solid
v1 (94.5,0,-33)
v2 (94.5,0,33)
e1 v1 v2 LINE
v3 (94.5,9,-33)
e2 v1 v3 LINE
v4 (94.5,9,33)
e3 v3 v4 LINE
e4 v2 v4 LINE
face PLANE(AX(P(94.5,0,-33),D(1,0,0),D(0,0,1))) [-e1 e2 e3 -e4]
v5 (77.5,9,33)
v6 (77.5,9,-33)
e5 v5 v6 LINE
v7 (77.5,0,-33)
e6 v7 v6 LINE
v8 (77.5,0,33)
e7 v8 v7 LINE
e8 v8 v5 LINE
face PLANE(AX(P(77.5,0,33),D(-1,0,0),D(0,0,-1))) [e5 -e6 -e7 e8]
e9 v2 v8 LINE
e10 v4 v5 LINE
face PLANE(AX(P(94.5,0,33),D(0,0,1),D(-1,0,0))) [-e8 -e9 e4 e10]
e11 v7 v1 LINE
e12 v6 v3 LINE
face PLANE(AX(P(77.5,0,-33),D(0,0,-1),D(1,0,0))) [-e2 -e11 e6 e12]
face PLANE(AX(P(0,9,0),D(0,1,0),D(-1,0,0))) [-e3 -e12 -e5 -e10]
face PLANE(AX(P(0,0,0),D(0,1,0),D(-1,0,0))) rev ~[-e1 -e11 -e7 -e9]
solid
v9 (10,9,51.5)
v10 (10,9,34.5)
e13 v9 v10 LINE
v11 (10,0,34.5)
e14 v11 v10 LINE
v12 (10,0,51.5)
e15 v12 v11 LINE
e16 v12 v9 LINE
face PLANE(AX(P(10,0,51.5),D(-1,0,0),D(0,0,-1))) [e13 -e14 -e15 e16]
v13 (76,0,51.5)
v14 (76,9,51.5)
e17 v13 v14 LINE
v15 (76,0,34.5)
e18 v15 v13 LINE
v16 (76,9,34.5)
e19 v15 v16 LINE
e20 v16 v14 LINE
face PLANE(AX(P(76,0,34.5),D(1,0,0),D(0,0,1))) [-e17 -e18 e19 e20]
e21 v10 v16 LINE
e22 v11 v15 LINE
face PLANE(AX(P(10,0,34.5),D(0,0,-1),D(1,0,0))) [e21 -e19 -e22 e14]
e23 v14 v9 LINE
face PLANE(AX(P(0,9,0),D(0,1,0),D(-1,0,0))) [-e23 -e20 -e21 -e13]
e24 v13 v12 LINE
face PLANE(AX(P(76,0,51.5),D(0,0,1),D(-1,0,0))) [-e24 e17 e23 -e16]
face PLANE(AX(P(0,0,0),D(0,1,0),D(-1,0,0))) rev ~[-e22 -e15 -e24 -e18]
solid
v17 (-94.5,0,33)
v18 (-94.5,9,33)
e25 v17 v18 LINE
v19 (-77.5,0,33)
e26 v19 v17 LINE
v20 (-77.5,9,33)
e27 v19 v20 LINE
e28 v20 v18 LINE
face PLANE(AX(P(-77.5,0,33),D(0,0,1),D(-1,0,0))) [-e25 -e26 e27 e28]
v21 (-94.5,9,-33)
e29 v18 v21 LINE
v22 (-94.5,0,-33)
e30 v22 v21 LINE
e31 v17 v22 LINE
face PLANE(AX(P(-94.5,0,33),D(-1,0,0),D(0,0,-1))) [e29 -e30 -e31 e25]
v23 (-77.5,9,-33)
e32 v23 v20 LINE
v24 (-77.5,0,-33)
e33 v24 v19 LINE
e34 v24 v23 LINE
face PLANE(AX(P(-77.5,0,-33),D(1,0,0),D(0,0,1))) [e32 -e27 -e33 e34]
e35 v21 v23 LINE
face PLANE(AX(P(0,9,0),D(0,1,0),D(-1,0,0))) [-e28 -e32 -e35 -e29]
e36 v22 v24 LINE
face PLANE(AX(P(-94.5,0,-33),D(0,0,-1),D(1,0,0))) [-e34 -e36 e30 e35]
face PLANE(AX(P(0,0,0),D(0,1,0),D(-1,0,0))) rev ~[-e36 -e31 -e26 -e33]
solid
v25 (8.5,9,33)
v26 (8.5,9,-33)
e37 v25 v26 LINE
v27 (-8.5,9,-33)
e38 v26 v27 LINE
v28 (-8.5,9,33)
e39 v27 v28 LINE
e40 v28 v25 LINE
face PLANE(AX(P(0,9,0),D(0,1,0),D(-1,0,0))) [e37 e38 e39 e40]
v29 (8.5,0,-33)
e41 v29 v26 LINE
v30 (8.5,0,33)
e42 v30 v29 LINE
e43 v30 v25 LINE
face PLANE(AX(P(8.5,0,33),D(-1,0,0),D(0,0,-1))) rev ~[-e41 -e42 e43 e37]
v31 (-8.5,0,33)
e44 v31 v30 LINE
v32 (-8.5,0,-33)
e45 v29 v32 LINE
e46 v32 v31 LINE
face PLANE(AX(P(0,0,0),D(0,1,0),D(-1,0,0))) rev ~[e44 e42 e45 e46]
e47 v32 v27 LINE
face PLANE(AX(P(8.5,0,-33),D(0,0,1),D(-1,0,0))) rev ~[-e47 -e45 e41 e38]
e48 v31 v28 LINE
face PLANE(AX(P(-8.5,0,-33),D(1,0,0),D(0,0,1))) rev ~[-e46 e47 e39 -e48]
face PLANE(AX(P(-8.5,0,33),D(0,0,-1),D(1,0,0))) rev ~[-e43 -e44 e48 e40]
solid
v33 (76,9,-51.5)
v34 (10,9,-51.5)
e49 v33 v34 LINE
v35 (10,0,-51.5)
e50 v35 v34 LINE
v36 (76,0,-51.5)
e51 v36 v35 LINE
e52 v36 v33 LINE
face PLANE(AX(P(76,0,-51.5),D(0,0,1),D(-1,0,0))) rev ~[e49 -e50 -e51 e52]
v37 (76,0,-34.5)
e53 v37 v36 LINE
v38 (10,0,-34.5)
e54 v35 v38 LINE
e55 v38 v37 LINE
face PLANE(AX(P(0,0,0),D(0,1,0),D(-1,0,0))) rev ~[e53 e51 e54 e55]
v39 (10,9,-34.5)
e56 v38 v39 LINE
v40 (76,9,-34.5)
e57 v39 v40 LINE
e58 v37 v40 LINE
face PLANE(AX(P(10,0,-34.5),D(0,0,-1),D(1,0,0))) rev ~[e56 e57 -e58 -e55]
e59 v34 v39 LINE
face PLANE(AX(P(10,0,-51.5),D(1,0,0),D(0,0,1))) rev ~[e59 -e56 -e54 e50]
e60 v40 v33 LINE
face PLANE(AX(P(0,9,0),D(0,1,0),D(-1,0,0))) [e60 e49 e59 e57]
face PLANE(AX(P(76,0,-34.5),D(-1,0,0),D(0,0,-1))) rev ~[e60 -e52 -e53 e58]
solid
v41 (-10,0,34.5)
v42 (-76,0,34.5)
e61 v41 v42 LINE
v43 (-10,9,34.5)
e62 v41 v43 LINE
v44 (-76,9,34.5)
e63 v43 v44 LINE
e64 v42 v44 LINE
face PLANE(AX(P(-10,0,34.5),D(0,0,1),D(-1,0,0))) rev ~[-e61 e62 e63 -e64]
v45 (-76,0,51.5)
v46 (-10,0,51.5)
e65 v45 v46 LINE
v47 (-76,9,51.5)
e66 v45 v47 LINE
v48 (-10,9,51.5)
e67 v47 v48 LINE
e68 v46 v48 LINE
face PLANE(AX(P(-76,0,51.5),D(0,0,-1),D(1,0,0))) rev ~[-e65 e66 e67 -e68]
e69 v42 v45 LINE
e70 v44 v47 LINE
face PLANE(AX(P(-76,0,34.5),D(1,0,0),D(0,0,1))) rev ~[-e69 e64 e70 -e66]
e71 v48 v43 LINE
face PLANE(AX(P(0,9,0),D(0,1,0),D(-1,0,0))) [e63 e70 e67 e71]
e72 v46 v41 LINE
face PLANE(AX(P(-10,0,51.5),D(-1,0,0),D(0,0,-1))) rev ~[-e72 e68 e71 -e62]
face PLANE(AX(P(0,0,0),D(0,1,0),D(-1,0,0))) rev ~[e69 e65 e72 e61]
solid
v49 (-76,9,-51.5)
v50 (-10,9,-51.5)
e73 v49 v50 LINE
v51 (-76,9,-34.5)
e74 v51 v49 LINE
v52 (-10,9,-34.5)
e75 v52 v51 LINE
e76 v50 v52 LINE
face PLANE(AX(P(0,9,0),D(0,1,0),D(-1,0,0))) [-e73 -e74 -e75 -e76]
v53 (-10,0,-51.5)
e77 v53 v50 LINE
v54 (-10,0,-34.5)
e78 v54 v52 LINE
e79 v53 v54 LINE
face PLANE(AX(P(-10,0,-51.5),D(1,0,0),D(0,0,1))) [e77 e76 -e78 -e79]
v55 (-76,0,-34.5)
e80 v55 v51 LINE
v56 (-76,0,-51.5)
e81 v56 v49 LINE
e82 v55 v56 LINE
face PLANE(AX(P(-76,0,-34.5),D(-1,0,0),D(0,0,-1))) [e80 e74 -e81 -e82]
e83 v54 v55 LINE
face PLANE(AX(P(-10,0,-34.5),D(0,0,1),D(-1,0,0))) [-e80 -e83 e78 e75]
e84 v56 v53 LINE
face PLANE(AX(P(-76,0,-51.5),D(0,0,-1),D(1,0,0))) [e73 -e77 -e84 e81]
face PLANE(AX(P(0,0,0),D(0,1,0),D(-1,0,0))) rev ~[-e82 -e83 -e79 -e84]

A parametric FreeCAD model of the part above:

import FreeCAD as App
import Part
import Sketcher
Q = App.Units.Quantity


def add_polygon(sketch, points):
    """Adds a closed chain of lines whose ends are joined by coincident constraints."""
    first, n = sketch.GeometryCount, len(points)
    for a, b in zip(points, points[1:] + points[:1]):
        sketch.addGeometry(Part.LineSegment(App.Vector(*a, 0), App.Vector(*b, 0)), False)
    for i in range(n):
        sketch.addConstraint(Sketcher.Constraint("Coincident", first + i, 2, first + (i + 1) % n, 1))

doc = App.newDocument("Part")
body = doc.addObject("PartDesign::Body", "Body")
body.AllowCompound = True

sketch1 = body.newObject("Sketcher::SketchObject", "Sketch")
sketch1.AttachmentSupport = (doc.getObject("XZ_Plane"), [""])
sketch1.MapMode = "FlatFace"
add_polygon(sketch1, [(-76, 34), (-76, 52), (-10, 52), (-10, 34)])
add_polygon(sketch1, [(-8, -33), (-8, 33), (8, 33), (8, -33)])
add_polygon(sketch1, [(-94, 33), (-78, 33), (-78, -33), (-94, -33)])
add_polygon(sketch1, [(78, 33), (94, 33), (94, -33), (78, -33)])
add_polygon(sketch1, [(10, 52), (76, 52), (76, 34), (10, 34)])
add_polygon(sketch1, [(-10, -52), (-76, -52), (-76, -34), (-10, -34)])
add_polygon(sketch1, [(76, -52), (10, -52), (10, -34), (76, -34)])
sketch1.addConstraint(Sketcher.Constraint("Vertical", 0))
sketch1.addConstraint(Sketcher.Constraint("Horizontal", 1))
sketch1.addConstraint(Sketcher.Constraint("Vertical", 2))
sketch1.addConstraint(Sketcher.Constraint("Horizontal", 3))
sketch1.addConstraint(Sketcher.Constraint("Vertical", 4))
sketch1.addConstraint(Sketcher.Constraint("Horizontal", 5))
sketch1.addConstraint(Sketcher.Constraint("Vertical", 6))
sketch1.addConstraint(Sketcher.Constraint("Horizontal", 7))
sketch1.addConstraint(Sketcher.Constraint("Horizontal", 8))
sketch1.addConstraint(Sketcher.Constraint("Vertical", 9))
sketch1.addConstraint(Sketcher.Constraint("Horizontal", 10))
sketch1.addConstraint(Sketcher.Constraint("Vertical", 11))
sketch1.addConstraint(Sketcher.Constraint("Horizontal", 12))
sketch1.addConstraint(Sketcher.Constraint("Vertical", 13))
sketch1.addConstraint(Sketcher.Constraint("Horizontal", 14))
sketch1.addConstraint(Sketcher.Constraint("Vertical", 15))
sketch1.addConstraint(Sketcher.Constraint("Horizontal", 16))
sketch1.addConstraint(Sketcher.Constraint("Vertical", 17))
sketch1.addConstraint(Sketcher.Constraint("Horizontal", 18))
sketch1.addConstraint(Sketcher.Constraint("Vertical", 19))
sketch1.addConstraint(Sketcher.Constraint("Horizontal", 20))
sketch1.addConstraint(Sketcher.Constraint("Vertical", 21))
sketch1.addConstraint(Sketcher.Constraint("Horizontal", 22))
sketch1.addConstraint(Sketcher.Constraint("Vertical", 23))
sketch1.addConstraint(Sketcher.Constraint("Horizontal", 24))
sketch1.addConstraint(Sketcher.Constraint("Vertical", 25))
sketch1.addConstraint(Sketcher.Constraint("Horizontal", 26))
sketch1.addConstraint(Sketcher.Constraint("Vertical", 27))
sketch1.addConstraint(Sketcher.Constraint("Symmetric", 4, 2, 6, 2, -1, 1))
sketch1.addConstraint(Sketcher.Constraint("Symmetric", 10, 2, 12, 2, -1, 1))
sketch1.addConstraint(Sketcher.Constraint("Symmetric", 8, 2, 14, 2, -1, 1))
sketch1.addConstraint(Sketcher.Constraint("Symmetric", 16, 2, 20, 2, -1, 1))
sketch1.addConstraint(Sketcher.Constraint("Symmetric", 18, 2, 22, 2, -1, 1))
sketch1.addConstraint(Sketcher.Constraint("Symmetric", 1, 2, 24, 2, -1, 1))
sketch1.addConstraint(Sketcher.Constraint("Symmetric", 3, 2, 26, 2, -1, 1))
sketch1.addConstraint(Sketcher.Constraint("Symmetric", 0, 2, 16, 2, -2))
sketch1.addConstraint(Sketcher.Constraint("Symmetric", 2, 2, 18, 2, -2))
sketch1.addConstraint(Sketcher.Constraint("Horizontal", 5, 2, 8, 2))
sketch1.addConstraint(Sketcher.Constraint("Horizontal", 7, 2, 9, 2))
sketch1.addConstraint(Sketcher.Constraint("Equal", 7, 8))
sketch1.addConstraint(Sketcher.Constraint("Equal", 14, 0))
sketch1.addConstraint(Sketcher.Constraint("Equal", 26, 4))
sketch1.addConstraint(Sketcher.Constraint("DistanceX", 1, 1, 1, 2, Q("66 mm")))
sketch1.addConstraint(Sketcher.Constraint("DistanceX", 5, 1, 5, 2, Q("17 mm")))
sketch1.addConstraint(Sketcher.Constraint("DistanceX", 9, 2, 6, 2, Q("86 mm")))
sketch1.addConstraint(Sketcher.Constraint("DistanceX", 1, 2, 16, 2, Q("86 mm")))
sketch1.addConstraint(Sketcher.Constraint("DistanceY", 20, 2, 3, 2, Q("86 mm")))
pad1 = body.newObject("PartDesign::Pad", "Pad")
pad1.Profile = sketch1
pad1.Length = 9
pad1.Reversed = True

doc.recompute()
